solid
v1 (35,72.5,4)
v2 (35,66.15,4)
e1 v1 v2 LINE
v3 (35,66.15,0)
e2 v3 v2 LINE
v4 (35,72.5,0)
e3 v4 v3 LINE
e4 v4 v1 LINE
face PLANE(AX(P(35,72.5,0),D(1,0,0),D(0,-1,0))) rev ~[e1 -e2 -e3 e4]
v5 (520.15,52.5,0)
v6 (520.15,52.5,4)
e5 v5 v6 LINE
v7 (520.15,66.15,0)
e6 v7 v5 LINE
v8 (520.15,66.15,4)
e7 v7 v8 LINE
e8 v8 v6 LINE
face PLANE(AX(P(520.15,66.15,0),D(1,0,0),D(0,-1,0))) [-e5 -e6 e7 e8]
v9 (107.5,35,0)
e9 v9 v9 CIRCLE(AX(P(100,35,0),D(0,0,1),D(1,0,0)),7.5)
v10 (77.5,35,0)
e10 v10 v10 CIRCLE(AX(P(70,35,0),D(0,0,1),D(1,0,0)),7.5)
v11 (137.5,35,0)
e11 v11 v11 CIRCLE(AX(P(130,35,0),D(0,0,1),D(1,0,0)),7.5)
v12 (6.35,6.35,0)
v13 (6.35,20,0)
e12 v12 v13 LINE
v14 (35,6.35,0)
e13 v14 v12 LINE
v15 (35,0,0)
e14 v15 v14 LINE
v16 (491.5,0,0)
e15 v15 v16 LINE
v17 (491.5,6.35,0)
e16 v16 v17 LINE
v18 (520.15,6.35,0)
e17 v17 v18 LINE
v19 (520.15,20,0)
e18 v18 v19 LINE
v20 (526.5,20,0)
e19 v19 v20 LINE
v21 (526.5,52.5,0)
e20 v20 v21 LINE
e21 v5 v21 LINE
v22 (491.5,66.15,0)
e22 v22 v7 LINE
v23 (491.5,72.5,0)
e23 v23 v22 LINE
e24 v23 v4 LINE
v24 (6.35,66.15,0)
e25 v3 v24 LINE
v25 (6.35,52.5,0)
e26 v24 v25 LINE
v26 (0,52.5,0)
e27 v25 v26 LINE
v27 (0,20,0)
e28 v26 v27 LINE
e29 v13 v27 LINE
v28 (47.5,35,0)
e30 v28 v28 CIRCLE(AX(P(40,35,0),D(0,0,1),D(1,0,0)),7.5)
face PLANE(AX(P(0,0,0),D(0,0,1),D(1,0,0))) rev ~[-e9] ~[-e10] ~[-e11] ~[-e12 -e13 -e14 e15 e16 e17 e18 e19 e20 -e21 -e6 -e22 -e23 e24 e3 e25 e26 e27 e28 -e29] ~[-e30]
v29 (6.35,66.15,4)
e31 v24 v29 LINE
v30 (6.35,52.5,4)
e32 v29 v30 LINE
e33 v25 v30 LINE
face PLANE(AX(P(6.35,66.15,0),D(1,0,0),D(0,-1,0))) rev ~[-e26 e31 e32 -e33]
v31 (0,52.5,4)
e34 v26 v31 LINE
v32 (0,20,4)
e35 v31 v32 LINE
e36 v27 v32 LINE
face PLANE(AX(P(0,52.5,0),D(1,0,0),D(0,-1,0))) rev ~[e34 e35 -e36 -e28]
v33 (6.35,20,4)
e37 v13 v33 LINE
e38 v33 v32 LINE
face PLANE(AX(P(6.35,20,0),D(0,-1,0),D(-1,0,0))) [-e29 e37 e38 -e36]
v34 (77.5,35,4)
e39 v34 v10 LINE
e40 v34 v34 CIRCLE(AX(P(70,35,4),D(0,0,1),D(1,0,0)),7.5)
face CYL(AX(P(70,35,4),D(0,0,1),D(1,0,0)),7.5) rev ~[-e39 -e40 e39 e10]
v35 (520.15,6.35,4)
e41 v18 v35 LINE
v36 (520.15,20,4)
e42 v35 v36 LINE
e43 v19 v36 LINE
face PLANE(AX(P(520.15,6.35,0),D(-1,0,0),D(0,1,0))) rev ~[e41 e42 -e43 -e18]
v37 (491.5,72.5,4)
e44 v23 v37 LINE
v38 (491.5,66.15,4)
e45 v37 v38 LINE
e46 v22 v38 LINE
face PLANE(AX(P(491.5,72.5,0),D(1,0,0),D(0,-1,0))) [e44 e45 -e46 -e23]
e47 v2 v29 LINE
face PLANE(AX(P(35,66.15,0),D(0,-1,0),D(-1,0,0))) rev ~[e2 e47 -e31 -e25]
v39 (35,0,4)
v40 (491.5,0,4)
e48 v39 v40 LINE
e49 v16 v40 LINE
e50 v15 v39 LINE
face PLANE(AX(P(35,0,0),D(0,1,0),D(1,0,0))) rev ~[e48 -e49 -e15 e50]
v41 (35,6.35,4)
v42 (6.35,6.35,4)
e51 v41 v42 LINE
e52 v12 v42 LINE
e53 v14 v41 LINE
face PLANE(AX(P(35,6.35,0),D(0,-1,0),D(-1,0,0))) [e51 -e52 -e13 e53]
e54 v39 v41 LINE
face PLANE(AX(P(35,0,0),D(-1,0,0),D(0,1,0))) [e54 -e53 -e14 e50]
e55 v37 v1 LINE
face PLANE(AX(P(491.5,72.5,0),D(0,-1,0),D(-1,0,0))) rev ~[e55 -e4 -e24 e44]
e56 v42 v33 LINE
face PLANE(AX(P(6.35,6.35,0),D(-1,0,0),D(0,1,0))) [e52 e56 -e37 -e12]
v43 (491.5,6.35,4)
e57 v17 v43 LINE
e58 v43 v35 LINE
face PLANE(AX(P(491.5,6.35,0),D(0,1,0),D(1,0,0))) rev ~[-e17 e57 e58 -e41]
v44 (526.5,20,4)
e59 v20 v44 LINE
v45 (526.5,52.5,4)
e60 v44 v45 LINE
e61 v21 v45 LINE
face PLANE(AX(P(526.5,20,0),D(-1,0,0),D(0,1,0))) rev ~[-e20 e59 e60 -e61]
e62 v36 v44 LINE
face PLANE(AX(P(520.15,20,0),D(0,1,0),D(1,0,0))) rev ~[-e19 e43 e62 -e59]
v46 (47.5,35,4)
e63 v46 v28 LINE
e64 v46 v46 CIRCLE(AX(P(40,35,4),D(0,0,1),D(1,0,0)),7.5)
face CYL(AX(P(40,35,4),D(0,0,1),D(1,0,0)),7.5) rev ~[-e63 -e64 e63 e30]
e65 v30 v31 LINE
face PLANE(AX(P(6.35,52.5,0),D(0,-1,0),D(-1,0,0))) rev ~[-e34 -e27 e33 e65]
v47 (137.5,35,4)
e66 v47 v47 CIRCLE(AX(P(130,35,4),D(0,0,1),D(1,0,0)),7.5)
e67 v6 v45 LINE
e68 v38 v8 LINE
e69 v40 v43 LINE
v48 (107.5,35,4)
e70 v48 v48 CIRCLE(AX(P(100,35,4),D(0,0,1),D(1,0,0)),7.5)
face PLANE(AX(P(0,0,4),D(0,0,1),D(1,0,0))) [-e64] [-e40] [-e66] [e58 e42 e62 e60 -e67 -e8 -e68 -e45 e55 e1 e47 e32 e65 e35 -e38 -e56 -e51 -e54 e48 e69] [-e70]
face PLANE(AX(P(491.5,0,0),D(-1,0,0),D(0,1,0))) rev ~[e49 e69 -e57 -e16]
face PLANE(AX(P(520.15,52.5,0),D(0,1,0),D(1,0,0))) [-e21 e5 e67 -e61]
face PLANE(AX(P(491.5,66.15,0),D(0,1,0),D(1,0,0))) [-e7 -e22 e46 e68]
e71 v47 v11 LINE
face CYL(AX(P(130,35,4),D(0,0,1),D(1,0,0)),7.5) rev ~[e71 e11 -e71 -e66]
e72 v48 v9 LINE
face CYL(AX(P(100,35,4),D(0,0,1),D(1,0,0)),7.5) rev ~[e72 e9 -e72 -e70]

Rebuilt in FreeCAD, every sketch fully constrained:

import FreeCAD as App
import Part
import Sketcher

V = App.Vector

doc = App.newDocument("Part")
body = doc.addObject("PartDesign::Body", "Body")

# Sketch on XY plane
sketch1 = body.newObject("Sketcher::SketchObject", "Sketch")
sketch1.AttachmentSupport = (doc.getObject("XY_Plane"), [""])
sketch1.MapMode = "FlatFace"
sketch1.addGeometry([
    Part.LineSegment(V(35, 6.35, 0), V(35, 0, 0)),  # 0
    Part.LineSegment(V(35, 0, 0), V(491.5, 0, 0)),  # 1
    Part.LineSegment(V(491.5, 0, 0), V(491.5, 6.35, 0)),  # 2
    Part.LineSegment(V(491.5, 6.35, 0), V(520.15, 6.35, 0)),  # 3
    Part.LineSegment(V(520.15, 6.35, 0), V(520.15, 20, 0)),  # 4
    Part.LineSegment(V(520.15, 20, 0), V(526.5, 20, 0)),  # 5
    Part.LineSegment(V(526.5, 20, 0), V(526.5, 52.5, 0)),  # 6
    Part.LineSegment(V(526.5, 52.5, 0), V(520.15, 52.5, 0)),  # 7
    Part.LineSegment(V(520.15, 52.5, 0), V(520.15, 66.15, 0)),  # 8
    Part.LineSegment(V(520.15, 66.15, 0), V(491.5, 66.15, 0)),  # 9
    Part.LineSegment(V(491.5, 66.15, 0), V(491.5, 72.5, 0)),  # 10
    Part.LineSegment(V(491.5, 72.5, 0), V(35, 72.5, 0)),  # 11
    Part.LineSegment(V(35, 72.5, 0), V(35, 66.15, 0)),  # 12
    Part.LineSegment(V(35, 66.15, 0), V(6.35, 66.15, 0)),  # 13
    Part.LineSegment(V(6.35, 66.15, 0), V(6.35, 52.5, 0)),  # 14
    Part.LineSegment(V(6.35, 52.5, 0), V(0, 52.5, 0)),  # 15
    Part.LineSegment(V(0, 52.5, 0), V(0, 20, 0)),  # 16
    Part.LineSegment(V(0, 20, 0), V(6.35, 20, 0)),  # 17
    Part.LineSegment(V(6.35, 20, 0), V(6.35, 6.35, 0)),  # 18
    Part.LineSegment(V(6.35, 6.35, 0), V(35, 6.35, 0)),  # 19
], False)
sketch1.addConstraint([
    Sketcher.Constraint("Coincident", 0, 2, 1, 1),
    Sketcher.Constraint("Coincident", 1, 2, 2, 1),
    Sketcher.Constraint("Coincident", 2, 2, 3, 1),
    Sketcher.Constraint("Coincident", 3, 2, 4, 1),
    Sketcher.Constraint("Coincident", 4, 2, 5, 1),
    Sketcher.Constraint("Coincident", 5, 2, 6, 1),
    Sketcher.Constraint("Coincident", 6, 2, 7, 1),
    Sketcher.Constraint("Coincident", 7, 2, 8, 1),
    Sketcher.Constraint("Coincident", 8, 2, 9, 1),
    Sketcher.Constraint("Coincident", 9, 2, 10, 1),
    Sketcher.Constraint("Coincident", 10, 2, 11, 1),
    Sketcher.Constraint("Coincident", 11, 2, 12, 1),
    Sketcher.Constraint("Coincident", 12, 2, 13, 1),
    Sketcher.Constraint("Coincident", 13, 2, 14, 1),
    Sketcher.Constraint("Coincident", 14, 2, 15, 1),
    Sketcher.Constraint("Coincident", 15, 2, 16, 1),
    Sketcher.Constraint("Coincident", 16, 2, 17, 1),
    Sketcher.Constraint("Coincident", 17, 2, 18, 1),
    Sketcher.Constraint("Coincident", 18, 2, 19, 1),
    Sketcher.Constraint("Coincident", 19, 2, 0, 1),
    Sketcher.Constraint("Vertical", 0),
    Sketcher.Constraint("Horizontal", 1),
    Sketcher.Constraint("Vertical", 2),
    Sketcher.Constraint("Horizontal", 3),
    Sketcher.Constraint("Vertical", 4),
    Sketcher.Constraint("Horizontal", 5),
    Sketcher.Constraint("Vertical", 6),
    Sketcher.Constraint("Horizontal", 7),
    Sketcher.Constraint("Vertical", 8),
    Sketcher.Constraint("Horizontal", 9),
    Sketcher.Constraint("Vertical", 10),
    Sketcher.Constraint("Horizontal", 11),
    Sketcher.Constraint("Vertical", 12),
    Sketcher.Constraint("Horizontal", 13),
    Sketcher.Constraint("Vertical", 14),
    Sketcher.Constraint("Horizontal", 15),
    Sketcher.Constraint("Vertical", 16),
    Sketcher.Constraint("Horizontal", 17),
    Sketcher.Constraint("Vertical", 18),
    Sketcher.Constraint("Horizontal", 19),
    Sketcher.Constraint("PointOnObject", 0, 2, -1),
    Sketcher.Constraint("PointOnObject", 15, 2, -2),
    Sketcher.Constraint("Horizontal", 9, 2, 12, 2),
    Sketcher.Constraint("Horizontal", 7, 2, 14, 2),
    Sketcher.Constraint("Horizontal", 5, 2, 16, 2),
    Sketcher.Constraint("Horizontal", 3, 2, 18, 2),
    Sketcher.Constraint("Vertical", 4, 2, 7, 2),
    Sketcher.Constraint("Vertical", 2, 2, 9, 2),
    Sketcher.Constraint("Vertical", 0, 2, 11, 2),
    Sketcher.Constraint("Vertical", 14, 2, 17, 2),
    Sketcher.Constraint("Equal", 9, 13),
    Sketcher.Constraint("Equal", 7, 15),
    Sketcher.Constraint("Equal", 17, 0),
    Sketcher.Constraint("Equal", 4, 8),
    Sketcher.Constraint("Equal", 2, 10),
    Sketcher.Constraint("DistanceX", -1, 1, 0, 2, 35.0),
    Sketcher.Constraint("DistanceY", -1, 1, 4, 2, 20.0),
    Sketcher.Constraint("DistanceX", 5, 1, 5, 2, 6.35),
    Sketcher.Constraint("DistanceX", -1, 1, 5, 2, 526.5),
    Sketcher.Constraint("DistanceY", -1, 1, 10, 2, 72.5),
])
pad1 = body.newObject("PartDesign::Pad", "Pad")
pad1.Profile = sketch1
pad1.Length = 4

# Sketch on XY plane
sketch2 = body.newObject("Sketcher::SketchObject", "Sketch001")
sketch2.AttachmentSupport = (doc.getObject("XY_Plane"), [""])
sketch2.MapMode = "FlatFace"
sketch2.AttachmentOffset = App.Placement(V(0, 0, 4), App.Rotation())
sketch2.addGeometry([
    Part.Circle(V(40, 35, 0), V(0, 0, 1), 7.5),
    Part.Circle(V(70, 35, 0), V(0, 0, 1), 7.5),
    Part.Circle(V(100, 35, 0), V(0, 0, 1), 7.5),
    Part.Circle(V(130, 35, 0), V(0, 0, 1), 7.5),
], False)
sketch2.addConstraint([
    Sketcher.Constraint("Equal", 0, 1),
    Sketcher.Constraint("Equal", 1, 2),
    Sketcher.Constraint("Equal", 2, 3),
    Sketcher.Constraint("Horizontal", 0, 3, 1, 3),
    Sketcher.Constraint("Horizontal", 1, 3, 2, 3),
    Sketcher.Constraint("Horizontal", 2, 3, 3, 3),
    Sketcher.Constraint("Diameter", 0, 15.0),
    Sketcher.Constraint("DistanceX", -1, 1, 0, 3, 40.0),
    Sketcher.Constraint("DistanceY", -1, 1, 0, 3, 35.0),
    Sketcher.Constraint("DistanceX", 0, 3, 1, 3, 30.0),
    Sketcher.Constraint("DistanceX", 1, 3, 2, 3, 30.0),
    Sketcher.Constraint("DistanceX", 2, 3, 3, 3, 30.0),
])
pocket1 = body.newObject("PartDesign::Pocket", "Pocket")
pocket1.Profile = sketch2
pocket1.Length = 10

doc.recompute()
